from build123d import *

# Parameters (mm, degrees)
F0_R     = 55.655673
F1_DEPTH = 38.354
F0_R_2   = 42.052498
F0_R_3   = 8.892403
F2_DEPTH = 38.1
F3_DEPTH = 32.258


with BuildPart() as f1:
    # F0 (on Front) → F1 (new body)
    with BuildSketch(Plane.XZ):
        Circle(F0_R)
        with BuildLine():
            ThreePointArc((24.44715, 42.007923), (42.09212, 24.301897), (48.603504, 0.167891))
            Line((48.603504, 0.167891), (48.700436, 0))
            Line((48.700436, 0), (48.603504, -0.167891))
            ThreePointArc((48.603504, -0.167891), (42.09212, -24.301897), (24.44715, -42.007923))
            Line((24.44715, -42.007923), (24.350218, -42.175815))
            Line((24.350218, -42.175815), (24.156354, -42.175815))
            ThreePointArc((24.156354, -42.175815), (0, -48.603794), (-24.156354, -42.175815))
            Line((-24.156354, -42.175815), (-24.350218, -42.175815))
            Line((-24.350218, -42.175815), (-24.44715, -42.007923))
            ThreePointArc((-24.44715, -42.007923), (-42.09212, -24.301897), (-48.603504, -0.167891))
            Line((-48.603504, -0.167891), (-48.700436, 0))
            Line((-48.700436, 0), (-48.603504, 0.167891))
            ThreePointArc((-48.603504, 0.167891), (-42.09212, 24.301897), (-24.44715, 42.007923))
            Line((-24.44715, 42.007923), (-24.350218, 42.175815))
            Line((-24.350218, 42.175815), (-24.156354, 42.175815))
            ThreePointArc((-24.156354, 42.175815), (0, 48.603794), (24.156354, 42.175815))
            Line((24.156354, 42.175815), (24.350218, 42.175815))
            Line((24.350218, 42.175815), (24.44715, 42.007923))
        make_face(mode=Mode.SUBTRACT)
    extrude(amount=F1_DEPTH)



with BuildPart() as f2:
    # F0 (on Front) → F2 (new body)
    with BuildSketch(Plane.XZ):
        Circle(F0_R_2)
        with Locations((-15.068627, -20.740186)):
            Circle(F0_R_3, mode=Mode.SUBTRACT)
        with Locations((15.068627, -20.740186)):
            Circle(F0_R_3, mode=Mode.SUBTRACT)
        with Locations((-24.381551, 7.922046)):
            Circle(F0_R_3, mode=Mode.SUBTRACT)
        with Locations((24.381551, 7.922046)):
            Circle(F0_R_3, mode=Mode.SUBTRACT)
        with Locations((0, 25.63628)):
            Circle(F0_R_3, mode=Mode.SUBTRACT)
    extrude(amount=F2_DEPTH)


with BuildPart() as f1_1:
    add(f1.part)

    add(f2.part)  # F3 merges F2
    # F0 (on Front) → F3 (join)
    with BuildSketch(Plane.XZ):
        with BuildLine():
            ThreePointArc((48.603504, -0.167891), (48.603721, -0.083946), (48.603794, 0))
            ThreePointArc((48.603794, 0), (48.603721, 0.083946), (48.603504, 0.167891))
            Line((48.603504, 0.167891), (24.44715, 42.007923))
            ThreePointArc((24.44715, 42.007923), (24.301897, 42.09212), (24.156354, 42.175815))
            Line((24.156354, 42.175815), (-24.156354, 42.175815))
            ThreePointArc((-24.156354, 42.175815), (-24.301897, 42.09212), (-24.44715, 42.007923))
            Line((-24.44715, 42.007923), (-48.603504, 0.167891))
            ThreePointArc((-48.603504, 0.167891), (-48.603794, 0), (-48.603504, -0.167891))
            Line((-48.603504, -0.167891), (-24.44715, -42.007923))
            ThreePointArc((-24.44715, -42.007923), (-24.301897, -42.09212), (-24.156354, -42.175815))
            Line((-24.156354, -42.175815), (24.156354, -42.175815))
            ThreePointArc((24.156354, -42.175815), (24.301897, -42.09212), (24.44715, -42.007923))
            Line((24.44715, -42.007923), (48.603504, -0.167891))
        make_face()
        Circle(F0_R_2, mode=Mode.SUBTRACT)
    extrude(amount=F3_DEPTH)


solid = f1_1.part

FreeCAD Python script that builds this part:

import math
import FreeCAD as App
import Part
import Sketcher

V = App.Vector
Q = App.Units.Quantity

doc = App.newDocument("Part")
body = doc.addObject("PartDesign::Body", "Body")

# Sketch on XZ plane
sketch1 = doc.addObject("Sketcher::SketchObject", "Sketch")
body.addObject(sketch1)
sketch1.AttachmentSupport = (doc.XZ_Plane, [""])
sketch1.MapMode = "FlatFace"
sketch1.addGeometry([
    Part.Circle(V(0, 0, 0), V(0, 0, 1), 55.655673),  # 0
    Part.LineSegment(V(24.350218, 42.175815, 0), V(24.44715, 42.007923, 0)),  # 1
    Part.ArcOfCircle(Part.Circle(V(0, 0, 0), V(0, 0, 1), 48.603794), math.radians(0.197916), math.radians(59.802084)),  # 2
    Part.LineSegment(V(48.603504, 0.167891, 0), V(48.700436, 0, 0)),  # 3
    Part.LineSegment(V(48.700436, 0, 0), V(48.603504, -0.167891, 0)),  # 4
    Part.ArcOfCircle(Part.Circle(V(0, 0, 0), V(0, 0, 1), 48.603794), math.radians(-59.802084), math.radians(-0.197916)),  # 5
    Part.LineSegment(V(24.44715, -42.007923, 0), V(24.350218, -42.175815, 0)),  # 6
    Part.LineSegment(V(24.350218, -42.175815, 0), V(24.156354, -42.175815, 0)),  # 7
    Part.ArcOfCircle(Part.Circle(V(0, 0.000001, 0), V(0, 0, 1), 48.603795), math.radians(-119.802083), math.radians(-60.197917)),  # 8
    Part.LineSegment(V(-24.156354, -42.175815, 0), V(-24.350218, -42.175815, 0)),  # 9
    Part.LineSegment(V(-24.350218, -42.175815, 0), V(-24.44715, -42.007923, 0)),  # 10
    Part.ArcOfCircle(Part.Circle(V(0, 0, 0), V(0, 0, 1), 48.603794), math.radians(-179.802084), math.radians(-120.197916)),  # 11
    Part.LineSegment(V(-48.603504, -0.167891, 0), V(-48.700436, 0, 0)),  # 12
    Part.LineSegment(V(-48.700436, 0, 0), V(-48.603504, 0.167891, 0)),  # 13
    Part.ArcOfCircle(Part.Circle(V(0, 0, 0), V(0, 0, 1), 48.603794), math.radians(120.197916), math.radians(179.802084)),  # 14
    Part.LineSegment(V(-24.44715, 42.007923, 0), V(-24.350218, 42.175815, 0)),  # 15
    Part.LineSegment(V(-24.350218, 42.175815, 0), V(-24.156354, 42.175815, 0)),  # 16
    Part.ArcOfCircle(Part.Circle(V(0, -0.000001, 0), V(0, 0, 1), 48.603795), math.radians(60.197917), math.radians(119.802083)),  # 17
    Part.LineSegment(V(24.156354, 42.175815, 0), V(24.350218, 42.175815, 0)),  # 18
], False)
sketch1.addConstraint([
    Sketcher.Constraint("Coincident", 1, 2, 2, 2),
    Sketcher.Constraint("Coincident", 2, 1, 3, 1),
    Sketcher.Constraint("Coincident", 3, 2, 4, 1),
    Sketcher.Constraint("Coincident", 4, 2, 5, 2),
    Sketcher.Constraint("Coincident", 5, 1, 6, 1),
    Sketcher.Constraint("Coincident", 6, 2, 7, 1),
    Sketcher.Constraint("Coincident", 7, 2, 8, 2),
    Sketcher.Constraint("Coincident", 8, 1, 9, 1),
    Sketcher.Constraint("Coincident", 9, 2, 10, 1),
    Sketcher.Constraint("Coincident", 10, 2, 11, 2),
    Sketcher.Constraint("Coincident", 11, 1, 12, 1),
    Sketcher.Constraint("Coincident", 12, 2, 13, 1),
    Sketcher.Constraint("Coincident", 13, 2, 14, 2),
    Sketcher.Constraint("Coincident", 14, 1, 15, 1),
    Sketcher.Constraint("Coincident", 15, 2, 16, 1),
    Sketcher.Constraint("Coincident", 16, 2, 17, 2),
    Sketcher.Constraint("Coincident", 17, 1, 18, 1),
    Sketcher.Constraint("Coincident", 18, 2, 1, 1),
    Sketcher.Constraint("Horizontal", 7),
    Sketcher.Constraint("Horizontal", 9),
    Sketcher.Constraint("Horizontal", 16),
    Sketcher.Constraint("Horizontal", 18),
    Sketcher.Constraint("Coincident", 0, 3, -1, 1),
    Sketcher.Constraint("Coincident", 2, 3, -1, 1),
    Sketcher.Constraint("Coincident", 5, 3, -1, 1),
    Sketcher.Constraint("Coincident", 8, 3, -1, 1),
    Sketcher.Constraint("Coincident", 11, 3, -1, 1),
    Sketcher.Constraint("Coincident", 14, 3, -1, 1),
    Sketcher.Constraint("Coincident", 17, 3, -1, 1),
    Sketcher.Constraint("Equal", 2, 5),
    Sketcher.Constraint("Equal", 5, 8),
    Sketcher.Constraint("Equal", 8, 11),
    Sketcher.Constraint("Equal", 11, 14),
    Sketcher.Constraint("Equal", 14, 17),
    Sketcher.Constraint("Symmetric", 3, 2, 12, 2, -1, 1),
    Sketcher.Constraint("Symmetric", 6, 2, 15, 2, -1, 1),
    Sketcher.Constraint("Symmetric", 9, 2, 18, 2, -1, 1),
    Sketcher.Constraint("Symmetric", 6, 2, 9, 2, -2),
    Sketcher.Constraint("PointOnObject", 3, 2, -1),
    Sketcher.Constraint("Parallel", 1, 10),
    Sketcher.Constraint("Parallel", 3, 12),
    Sketcher.Constraint("Parallel", 4, 13),
    Sketcher.Constraint("Parallel", 6, 15),
    Sketcher.Constraint("Horizontal", 5, 1, 10, 2),
    Sketcher.Constraint("Horizontal", 4, 2, 11, 1),
    Sketcher.Constraint("Equal", 1, 3),
    Sketcher.Constraint("Diameter", 0, 111.311346),
    Sketcher.Constraint("Radius", 2, 48.603794),
    Sketcher.Constraint("DistanceX", 7, 2, 7, 1, 0.193864),
    Sketcher.Constraint("DistanceX", -1, 1, 1, 2, 24.44715),
    Sketcher.Constraint("DistanceY", -1, 1, 2, 1, 0.167891),
    Sketcher.Constraint("DistanceX", -1, 1, 6, 2, 24.350218),
])
pad1 = doc.addObject("PartDesign::Pad", "Pad")
body.addObject(pad1)
pad1.Profile = sketch1
pad1.Length = Q("1.51 in")
body2 = doc.addObject("PartDesign::Body", "Body001")

# Sketch on XZ plane
sketch2 = doc.addObject("Sketcher::SketchObject", "Sketch001")
body2.addObject(sketch2)
sketch2.AttachmentSupport = (doc.getObject("XZ_Plane001"), [""])
sketch2.MapMode = "FlatFace"
sketch2.addGeometry([
    Part.Circle(V(0, 0, 0), V(0, 0, 1), 42),  # 0
    Part.Circle(V(-15, -21, 0), V(0, 0, 1), 9),  # 1
    Part.Circle(V(15, -21, 0), V(0, 0, 1), 9),  # 2
    Part.Circle(V(-24, 8, 0), V(0, 0, 1), 9),  # 3
    Part.Circle(V(0, 26, 0), V(0, 0, 1), 9),  # 4
    Part.Circle(V(24, 8, 0), V(0, 0, 1), 9),  # 5
], False)
sketch2.addConstraint([
    Sketcher.Constraint("Coincident", 0, 3, -1, 1),
    Sketcher.Constraint("Equal", 1, 2),
    Sketcher.Constraint("Equal", 2, 3),
    Sketcher.Constraint("Equal", 3, 4),
    Sketcher.Constraint("Equal", 4, 5),
    Sketcher.Constraint("Symmetric", 1, 3, 2, 3, -2),
    Sketcher.Constraint("Symmetric", 3, 3, 5, 3, -2),
    Sketcher.Constraint("PointOnObject", 4, 3, -2),
    Sketcher.Constraint("Diameter", 0, 84.104996),
    Sketcher.Constraint("Diameter", 1, 17.784806),
    Sketcher.Constraint("DistanceX", 3, 3, -1, 1, 24.381551),
    Sketcher.Constraint("DistanceY", -1, 1, 4, 3, 25.63628),
    Sketcher.Constraint("DistanceX", 1, 3, -1, 1, 15.068627),
    Sketcher.Constraint("DistanceY", 1, 3, -1, 1, 20.740186),
    Sketcher.Constraint("DistanceY", -1, 1, 3, 3, 7.922046),
])
pad2 = doc.addObject("PartDesign::Pad", "Pad001")
body2.addObject(pad2)
pad2.Profile = sketch2
pad2.Length = Q("1.5 in")
body.AllowCompound = True
doc.recompute()

boolean = doc.addObject("PartDesign::Boolean", "Boolean")
body.addObject(boolean)
boolean.Type = "Fuse"
boolean.addObjects([body2])

# Sketch on XZ plane
sketch3 = doc.addObject("Sketcher::SketchObject", "Sketch002")
body.addObject(sketch3)
sketch3.AttachmentSupport = (doc.XZ_Plane, [""])
sketch3.MapMode = "FlatFace"
sketch3.addGeometry([
    Part.ArcOfCircle(Part.Circle(V(-0.332311, 0.000582, 0), V(0, 0, 1), 48.936105), math.radians(-0.197254), math.radians(-0.000682)),  # 0
    Part.ArcOfCircle(Part.Circle(V(-0.332311, -0.000582, 0), V(0, 0, 1), 48.936105), math.radians(0.000682), math.radians(0.197254)),  # 1
    Part.LineSegment(V(48.603504, 0.167891, 0), V(24.44715, 42.007923, 0)),  # 2
    Part.ArcOfCircle(Part.Circle(V(-0.008543, -0.014584, 0), V(0, 0, 1), 48.620696), math.radians(59.802027), math.radians(60.197722)),  # 3
    Part.LineSegment(V(24.156354, 42.175815, 0), V(-24.156354, 42.175815, 0)),  # 4
    Part.ArcOfCircle(Part.Circle(V(0.008543, -0.014584, 0), V(0, 0, 1), 48.620696), math.radians(119.802278), math.radians(120.197973)),  # 5
    Part.LineSegment(V(-24.44715, 42.007923, 0), V(-48.603504, 0.167891, 0)),  # 6
    Part.ArcOfCircle(Part.Circle(V(-0.004704, 0, 0), V(0, 0, 1), 48.59909), math.radians(179.802065), math.radians(180.197935)),  # 7
    Part.LineSegment(V(-48.603504, -0.167891, 0), V(-24.44715, -42.007923, 0)),  # 8
    Part.ArcOfCircle(Part.Circle(V(0.008543, 0.014584, 0), V(0, 0, 1), 48.620696), math.radians(-120.197973), math.radians(-119.802278)),  # 9
    Part.LineSegment(V(-24.156354, -42.175815, 0), V(24.156354, -42.175815, 0)),  # 10
    Part.ArcOfCircle(Part.Circle(V(-0.008543, 0.014584, 0), V(0, 0, 1), 48.620696), math.radians(-60.197722), math.radians(-59.802027)),  # 11
    Part.LineSegment(V(24.44715, -42.007923, 0), V(48.603504, -0.167891, 0)),  # 12
    Part.Circle(V(0, 0, 0), V(0, 0, 1), 42.052498),  # 13
], False)
sketch3.addConstraint([
    Sketcher.Constraint("Coincident", 0, 2, 1, 1),
    Sketcher.Constraint("Coincident", 1, 2, 2, 1),
    Sketcher.Constraint("Coincident", 2, 2, 3, 1),
    Sketcher.Constraint("Coincident", 3, 2, 4, 1),
    Sketcher.Constraint("Coincident", 4, 2, 5, 1),
    Sketcher.Constraint("Coincident", 5, 2, 6, 1),
    Sketcher.Constraint("Coincident", 6, 2, 7, 1),
    Sketcher.Constraint("Coincident", 7, 2, 8, 1),
    Sketcher.Constraint("Coincident", 8, 2, 9, 1),
    Sketcher.Constraint("Coincident", 9, 2, 10, 1),
    Sketcher.Constraint("Coincident", 10, 2, 11, 1),
    Sketcher.Constraint("Coincident", 11, 2, 12, 1),
    Sketcher.Constraint("Coincident", 12, 2, 0, 1),
    Sketcher.Constraint("Horizontal", 4),
    Sketcher.Constraint("Horizontal", 10),
    Sketcher.Constraint("Coincident", 13, 3, -1, 1),
    Sketcher.Constraint("PointOnObject", 7, 3, -1),
    Sketcher.Constraint("PointOnObject", 0, 2, -1),
    Sketcher.Constraint("Radius", 7, 48.59909),
    Sketcher.Constraint("Diameter", 13, 84.104996),
    Sketcher.Constraint("Radius", 0, 48.936105),
    Sketcher.Constraint("Radius", 1, 48.936105),
    Sketcher.Constraint("Radius", 3, 48.620696),
    Sketcher.Constraint("Radius", 5, 48.620696),
    Sketcher.Constraint("Radius", 9, 48.620696),
    Sketcher.Constraint("Radius", 11, 48.620696),
    Sketcher.Constraint("DistanceX", 7, 3, 0, 2, 48.608498),
    Sketcher.Constraint("DistanceX", 4, 2, 4, 1, 48.312708),
    Sketcher.Constraint("DistanceX", 10, 1, 10, 2, 48.312708),
    Sketcher.Constraint("DistanceX", 0, 3, -1, 1, 0.332311),
    Sketcher.Constraint("DistanceY", -1, 1, 1, 2, 0.167891),
    Sketcher.Constraint("DistanceX", -1, 1, 2, 2, 24.44715),
    Sketcher.Constraint("DistanceX", 5, 2, -1, 1, 24.44715),
    Sketcher.Constraint("DistanceY", -1, 1, 6, 2, 0.167891),
    Sketcher.Constraint("DistanceY", 7, 2, -1, 1, 0.167891),
    Sketcher.Constraint("DistanceX", 8, 2, -1, 1, 24.44715),
    Sketcher.Constraint("DistanceX", -1, 1, 11, 2, 24.44715),
    Sketcher.Constraint("DistanceY", 12, 2, -1, 1, 0.167891),
    Sketcher.Constraint("DistanceX", 3, 3, 7, 3, 0.003839),
    Sketcher.Constraint("DistanceY", 5, 3, 9, 3, 0.029169),
    Sketcher.Constraint("DistanceY", 3, 3, 9, 3, 0.029169),
    Sketcher.Constraint("DistanceX", 11, 3, 7, 3, 0.003839),
    Sketcher.Constraint("DistanceY", 3, 3, 11, 3, 0.029169),
    Sketcher.Constraint("DistanceX", 5, 3, 0, 2, 48.595251),
    Sketcher.Constraint("DistanceX", 9, 3, 0, 2, 48.595251),
    Sketcher.Constraint("DistanceY", 0, 3, 5, 2, 42.007341),
    Sketcher.Constraint("DistanceY", 0, 3, 6, 2, 0.167309),
    Sketcher.Constraint("DistanceY", 7, 2, 1, 3, 0.167309),
])
pad3 = doc.addObject("PartDesign::Pad", "Pad002")
body.addObject(pad3)
pad3.Profile = sketch3
pad3.Length = Q("1.27 in")

doc.recompute()
